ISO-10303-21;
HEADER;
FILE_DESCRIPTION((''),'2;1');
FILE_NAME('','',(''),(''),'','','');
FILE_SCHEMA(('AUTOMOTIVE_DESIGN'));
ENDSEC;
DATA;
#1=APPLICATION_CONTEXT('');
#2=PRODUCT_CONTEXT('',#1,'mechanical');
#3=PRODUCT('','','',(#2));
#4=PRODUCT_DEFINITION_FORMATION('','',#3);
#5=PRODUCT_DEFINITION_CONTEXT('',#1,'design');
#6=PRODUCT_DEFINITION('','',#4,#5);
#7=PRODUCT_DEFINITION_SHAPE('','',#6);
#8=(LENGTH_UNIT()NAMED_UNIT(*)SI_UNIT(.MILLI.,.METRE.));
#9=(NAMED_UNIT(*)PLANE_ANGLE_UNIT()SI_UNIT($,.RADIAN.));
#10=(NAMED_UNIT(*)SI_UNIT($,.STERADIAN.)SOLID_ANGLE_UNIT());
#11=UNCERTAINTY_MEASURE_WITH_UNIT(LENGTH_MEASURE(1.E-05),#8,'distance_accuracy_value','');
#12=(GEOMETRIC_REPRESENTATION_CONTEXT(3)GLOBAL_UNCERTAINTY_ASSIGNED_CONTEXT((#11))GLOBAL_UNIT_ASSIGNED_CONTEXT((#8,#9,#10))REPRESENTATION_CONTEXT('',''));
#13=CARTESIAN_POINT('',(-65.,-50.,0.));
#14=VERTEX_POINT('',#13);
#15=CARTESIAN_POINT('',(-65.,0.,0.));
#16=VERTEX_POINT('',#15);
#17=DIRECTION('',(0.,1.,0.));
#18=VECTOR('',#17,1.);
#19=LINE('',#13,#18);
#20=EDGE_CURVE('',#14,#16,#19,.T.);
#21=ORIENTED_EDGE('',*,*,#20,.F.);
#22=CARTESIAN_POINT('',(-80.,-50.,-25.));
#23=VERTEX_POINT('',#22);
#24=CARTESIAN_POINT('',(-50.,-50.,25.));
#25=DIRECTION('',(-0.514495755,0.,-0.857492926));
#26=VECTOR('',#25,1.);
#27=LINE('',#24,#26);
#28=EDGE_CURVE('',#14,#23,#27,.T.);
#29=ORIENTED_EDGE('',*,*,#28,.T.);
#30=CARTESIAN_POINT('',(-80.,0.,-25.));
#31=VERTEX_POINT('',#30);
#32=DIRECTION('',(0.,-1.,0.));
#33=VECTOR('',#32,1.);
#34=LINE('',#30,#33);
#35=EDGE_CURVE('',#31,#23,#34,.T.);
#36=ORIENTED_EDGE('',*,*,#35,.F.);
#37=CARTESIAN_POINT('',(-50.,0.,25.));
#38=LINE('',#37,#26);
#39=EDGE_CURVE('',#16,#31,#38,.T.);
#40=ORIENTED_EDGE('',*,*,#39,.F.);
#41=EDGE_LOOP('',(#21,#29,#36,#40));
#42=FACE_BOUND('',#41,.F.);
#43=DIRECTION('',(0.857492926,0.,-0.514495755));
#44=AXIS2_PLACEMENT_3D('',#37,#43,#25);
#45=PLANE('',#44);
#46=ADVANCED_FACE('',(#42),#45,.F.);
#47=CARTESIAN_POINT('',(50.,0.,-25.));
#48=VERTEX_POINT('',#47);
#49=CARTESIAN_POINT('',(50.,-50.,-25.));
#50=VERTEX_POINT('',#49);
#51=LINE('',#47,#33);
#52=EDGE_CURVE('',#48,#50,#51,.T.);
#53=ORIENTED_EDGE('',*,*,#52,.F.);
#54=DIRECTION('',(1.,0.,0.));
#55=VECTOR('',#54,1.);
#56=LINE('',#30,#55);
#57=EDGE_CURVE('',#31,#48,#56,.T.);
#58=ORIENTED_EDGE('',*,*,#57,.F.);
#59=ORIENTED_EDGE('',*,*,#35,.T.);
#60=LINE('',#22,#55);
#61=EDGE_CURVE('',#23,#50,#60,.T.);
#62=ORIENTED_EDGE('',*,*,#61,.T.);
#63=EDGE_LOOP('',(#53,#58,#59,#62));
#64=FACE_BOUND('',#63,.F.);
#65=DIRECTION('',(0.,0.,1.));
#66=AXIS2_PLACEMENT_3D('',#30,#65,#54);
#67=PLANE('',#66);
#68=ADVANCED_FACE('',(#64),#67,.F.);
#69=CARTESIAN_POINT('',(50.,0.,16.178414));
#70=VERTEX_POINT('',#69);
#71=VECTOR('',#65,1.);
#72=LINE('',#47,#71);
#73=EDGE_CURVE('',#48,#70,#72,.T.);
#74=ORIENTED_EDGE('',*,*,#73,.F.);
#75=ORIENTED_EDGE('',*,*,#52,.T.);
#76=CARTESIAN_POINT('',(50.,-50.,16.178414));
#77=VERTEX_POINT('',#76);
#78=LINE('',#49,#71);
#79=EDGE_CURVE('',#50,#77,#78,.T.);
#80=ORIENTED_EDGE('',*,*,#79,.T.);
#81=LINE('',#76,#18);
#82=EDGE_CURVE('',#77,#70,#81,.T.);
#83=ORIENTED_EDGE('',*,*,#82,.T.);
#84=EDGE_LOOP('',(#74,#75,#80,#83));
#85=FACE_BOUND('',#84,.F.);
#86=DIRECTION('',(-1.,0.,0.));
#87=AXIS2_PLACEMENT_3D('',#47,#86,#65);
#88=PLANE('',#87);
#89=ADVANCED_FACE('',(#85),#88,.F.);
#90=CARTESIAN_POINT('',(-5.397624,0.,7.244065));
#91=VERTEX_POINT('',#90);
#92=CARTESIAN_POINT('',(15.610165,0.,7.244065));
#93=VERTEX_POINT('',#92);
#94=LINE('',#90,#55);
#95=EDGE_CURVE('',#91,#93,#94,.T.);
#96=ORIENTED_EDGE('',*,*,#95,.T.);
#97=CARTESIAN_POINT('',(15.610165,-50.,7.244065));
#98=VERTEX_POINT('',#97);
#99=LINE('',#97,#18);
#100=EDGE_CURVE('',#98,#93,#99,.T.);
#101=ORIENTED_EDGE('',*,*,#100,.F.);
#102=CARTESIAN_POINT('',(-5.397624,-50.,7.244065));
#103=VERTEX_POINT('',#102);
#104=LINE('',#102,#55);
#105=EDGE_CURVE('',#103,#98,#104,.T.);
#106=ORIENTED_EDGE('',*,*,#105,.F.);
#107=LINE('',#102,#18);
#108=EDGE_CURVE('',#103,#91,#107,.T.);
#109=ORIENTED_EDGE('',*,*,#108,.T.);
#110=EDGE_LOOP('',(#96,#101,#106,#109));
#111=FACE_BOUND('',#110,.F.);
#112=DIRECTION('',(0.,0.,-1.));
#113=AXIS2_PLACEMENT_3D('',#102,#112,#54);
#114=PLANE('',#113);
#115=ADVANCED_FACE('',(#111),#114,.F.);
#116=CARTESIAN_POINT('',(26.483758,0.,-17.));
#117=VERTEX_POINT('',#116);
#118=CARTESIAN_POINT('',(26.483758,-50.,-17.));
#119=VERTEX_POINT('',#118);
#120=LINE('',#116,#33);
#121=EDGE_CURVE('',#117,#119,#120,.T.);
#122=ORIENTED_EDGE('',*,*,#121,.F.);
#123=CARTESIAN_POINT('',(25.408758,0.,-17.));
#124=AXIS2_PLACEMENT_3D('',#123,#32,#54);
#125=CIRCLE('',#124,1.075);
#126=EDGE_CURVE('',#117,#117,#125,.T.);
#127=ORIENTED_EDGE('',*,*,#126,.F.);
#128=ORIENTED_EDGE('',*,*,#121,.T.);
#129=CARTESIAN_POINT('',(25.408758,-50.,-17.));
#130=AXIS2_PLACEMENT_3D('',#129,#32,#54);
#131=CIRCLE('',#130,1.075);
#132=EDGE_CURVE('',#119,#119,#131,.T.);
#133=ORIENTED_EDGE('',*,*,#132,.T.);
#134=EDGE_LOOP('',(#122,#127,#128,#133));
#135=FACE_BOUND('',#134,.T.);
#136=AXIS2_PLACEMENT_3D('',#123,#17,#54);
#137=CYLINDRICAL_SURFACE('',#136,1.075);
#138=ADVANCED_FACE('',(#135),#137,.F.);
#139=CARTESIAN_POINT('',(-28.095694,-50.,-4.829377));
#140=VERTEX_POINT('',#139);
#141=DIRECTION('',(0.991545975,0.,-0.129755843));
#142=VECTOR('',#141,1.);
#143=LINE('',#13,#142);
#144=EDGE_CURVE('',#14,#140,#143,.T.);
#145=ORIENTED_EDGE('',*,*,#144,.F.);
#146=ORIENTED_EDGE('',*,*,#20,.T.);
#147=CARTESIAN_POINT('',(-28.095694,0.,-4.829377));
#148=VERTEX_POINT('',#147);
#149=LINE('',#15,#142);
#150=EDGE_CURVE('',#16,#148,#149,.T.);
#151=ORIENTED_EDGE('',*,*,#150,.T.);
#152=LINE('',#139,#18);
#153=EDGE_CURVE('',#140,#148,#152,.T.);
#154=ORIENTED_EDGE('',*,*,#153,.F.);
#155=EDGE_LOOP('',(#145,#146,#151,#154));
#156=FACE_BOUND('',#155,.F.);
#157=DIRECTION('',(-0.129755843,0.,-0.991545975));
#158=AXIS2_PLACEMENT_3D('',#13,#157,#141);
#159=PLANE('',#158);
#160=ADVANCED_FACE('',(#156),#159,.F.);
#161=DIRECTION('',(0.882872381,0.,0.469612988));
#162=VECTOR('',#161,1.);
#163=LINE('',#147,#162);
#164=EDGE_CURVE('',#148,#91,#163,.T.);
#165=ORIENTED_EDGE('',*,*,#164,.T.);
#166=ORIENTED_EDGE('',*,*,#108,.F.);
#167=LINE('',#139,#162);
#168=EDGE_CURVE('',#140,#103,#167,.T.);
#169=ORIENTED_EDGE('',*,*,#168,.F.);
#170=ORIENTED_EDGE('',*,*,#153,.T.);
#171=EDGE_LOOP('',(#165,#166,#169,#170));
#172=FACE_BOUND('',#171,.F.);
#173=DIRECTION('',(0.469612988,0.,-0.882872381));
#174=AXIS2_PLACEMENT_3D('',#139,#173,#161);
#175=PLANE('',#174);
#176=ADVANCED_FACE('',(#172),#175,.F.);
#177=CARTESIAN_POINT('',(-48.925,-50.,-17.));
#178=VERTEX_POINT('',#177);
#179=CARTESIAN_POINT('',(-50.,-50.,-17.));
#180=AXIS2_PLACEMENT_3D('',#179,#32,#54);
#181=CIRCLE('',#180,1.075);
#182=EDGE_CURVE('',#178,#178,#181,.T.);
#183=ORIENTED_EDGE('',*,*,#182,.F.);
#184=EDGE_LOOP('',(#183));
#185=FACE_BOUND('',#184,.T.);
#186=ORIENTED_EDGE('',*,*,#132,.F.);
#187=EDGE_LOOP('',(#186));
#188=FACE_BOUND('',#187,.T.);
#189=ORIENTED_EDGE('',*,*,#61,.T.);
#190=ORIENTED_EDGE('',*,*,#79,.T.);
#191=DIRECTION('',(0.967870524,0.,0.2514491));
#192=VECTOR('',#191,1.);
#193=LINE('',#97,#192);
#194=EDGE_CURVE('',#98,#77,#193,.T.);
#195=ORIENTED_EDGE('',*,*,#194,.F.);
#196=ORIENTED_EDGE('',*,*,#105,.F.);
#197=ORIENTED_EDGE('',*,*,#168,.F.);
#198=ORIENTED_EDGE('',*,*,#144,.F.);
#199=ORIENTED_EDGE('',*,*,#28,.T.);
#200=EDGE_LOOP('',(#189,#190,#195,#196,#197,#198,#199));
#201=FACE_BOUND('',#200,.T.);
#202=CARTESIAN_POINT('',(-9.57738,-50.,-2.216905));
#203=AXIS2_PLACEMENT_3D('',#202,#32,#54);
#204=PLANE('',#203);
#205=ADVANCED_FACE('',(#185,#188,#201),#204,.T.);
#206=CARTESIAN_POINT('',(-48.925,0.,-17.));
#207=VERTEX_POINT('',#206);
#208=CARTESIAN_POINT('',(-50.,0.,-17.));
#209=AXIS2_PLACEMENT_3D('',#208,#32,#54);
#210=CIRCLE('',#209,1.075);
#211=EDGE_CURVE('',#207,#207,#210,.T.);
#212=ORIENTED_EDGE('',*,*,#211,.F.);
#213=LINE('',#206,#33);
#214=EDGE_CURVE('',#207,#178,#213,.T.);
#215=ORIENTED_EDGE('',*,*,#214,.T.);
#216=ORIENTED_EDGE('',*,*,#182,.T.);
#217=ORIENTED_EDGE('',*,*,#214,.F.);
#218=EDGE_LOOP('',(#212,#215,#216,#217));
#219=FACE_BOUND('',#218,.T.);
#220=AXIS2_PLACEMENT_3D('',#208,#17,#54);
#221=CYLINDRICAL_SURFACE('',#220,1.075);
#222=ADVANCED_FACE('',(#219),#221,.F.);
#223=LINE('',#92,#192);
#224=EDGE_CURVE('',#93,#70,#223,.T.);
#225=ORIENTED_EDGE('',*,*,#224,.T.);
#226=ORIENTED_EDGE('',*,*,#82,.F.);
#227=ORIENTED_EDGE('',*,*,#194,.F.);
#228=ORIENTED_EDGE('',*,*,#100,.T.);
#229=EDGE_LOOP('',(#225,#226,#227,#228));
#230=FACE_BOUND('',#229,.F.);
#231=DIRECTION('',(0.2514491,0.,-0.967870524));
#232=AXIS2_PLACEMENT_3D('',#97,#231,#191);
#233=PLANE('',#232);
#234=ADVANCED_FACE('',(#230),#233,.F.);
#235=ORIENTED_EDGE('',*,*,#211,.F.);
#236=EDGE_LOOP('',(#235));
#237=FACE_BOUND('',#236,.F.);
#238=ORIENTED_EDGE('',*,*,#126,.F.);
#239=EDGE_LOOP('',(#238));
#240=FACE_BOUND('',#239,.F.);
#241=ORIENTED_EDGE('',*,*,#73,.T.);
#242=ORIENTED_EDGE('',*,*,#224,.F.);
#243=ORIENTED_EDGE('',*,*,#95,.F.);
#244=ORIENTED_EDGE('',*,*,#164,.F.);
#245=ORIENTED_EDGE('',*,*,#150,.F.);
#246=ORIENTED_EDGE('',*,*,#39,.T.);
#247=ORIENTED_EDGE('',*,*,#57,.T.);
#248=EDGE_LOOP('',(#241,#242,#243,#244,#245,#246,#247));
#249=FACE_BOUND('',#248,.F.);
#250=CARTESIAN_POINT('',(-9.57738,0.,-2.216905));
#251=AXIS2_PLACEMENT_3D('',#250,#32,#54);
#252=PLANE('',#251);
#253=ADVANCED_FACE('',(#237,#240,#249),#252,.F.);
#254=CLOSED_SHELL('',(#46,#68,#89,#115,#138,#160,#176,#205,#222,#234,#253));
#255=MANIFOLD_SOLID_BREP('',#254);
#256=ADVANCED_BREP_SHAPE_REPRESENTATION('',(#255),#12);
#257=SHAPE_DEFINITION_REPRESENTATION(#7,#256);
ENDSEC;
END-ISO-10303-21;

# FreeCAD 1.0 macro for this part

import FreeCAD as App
import Part
import Sketcher

V = App.Vector

doc = App.newDocument("Part")
body = doc.addObject("PartDesign::Body", "Body")

sketch1 = body.newObject("Sketcher::SketchObject", "Sketch")
sketch1.AttachmentSupport = (doc.getObject("XZ_Plane"), [""])
sketch1.MapMode = "FlatFace"
sketch1.addGeometry([
    Part.LineSegment(V(50, -25, 0), V(50, 25, 0)),
    Part.LineSegment(V(50, 25, 0), V(-50, 25, 0)),
    Part.LineSegment(V(-50, 25, 0), V(-80, -25, 0)),
    Part.LineSegment(V(-80, -25, 0), V(50, -25, 0)),
    Part.Circle(V(-50, -17, 0), V(0, 0, 1), 1.1),
    Part.Circle(V(25.4, -17, 0), V(0, 0, 1), 1.1),
], False)
sketch1.addConstraint([
    Sketcher.Constraint("Coincident", 0, 2, 1, 1),
    Sketcher.Constraint("Coincident", 1, 2, 2, 1),
    Sketcher.Constraint("Coincident", 2, 2, 3, 1),
    Sketcher.Constraint("Coincident", 3, 2, 0, 1),
    Sketcher.Constraint("Vertical", 0),
    Sketcher.Constraint("Horizontal", 1),
    Sketcher.Constraint("Horizontal", 3),
    Sketcher.Constraint("Equal", 4, 5),
    Sketcher.Constraint("Symmetric", 1, 2, 3, 2, -1, 1),
    Sketcher.Constraint("Horizontal", 4, 3, 5, 3),
    Sketcher.Constraint("Vertical", 4, 3, 1, 2),
    Sketcher.Constraint("Diameter", 4, 2.15),
    Sketcher.Constraint("DistanceX", 1, 2, 1, 1, 100.0),
    Sketcher.Constraint("DistanceX", 3, 1, 3, 2, 130.0),
    Sketcher.Constraint("DistanceY", 0, 1, 0, 2, 50.0),
    Sketcher.Constraint("DistanceY", 4, 3, -1, 1, 17.0),
    Sketcher.Constraint("DistanceX", 4, 3, 5, 3, 75.408758),
])
pad1 = body.newObject("PartDesign::Pad", "Pad")
pad1.Profile = sketch1
pad1.Length = 50

sketch2 = body.newObject("Sketcher::SketchObject", "Sketch001")
sketch2.AttachmentSupport = (doc.getObject("XZ_Plane"), [""])
sketch2.MapMode = "FlatFace"
sketch2.AttachmentOffset = App.Placement(V(0, 0, 50), App.Rotation())
sketch2.addGeometry([
    Part.LineSegment(V(-50, 25, 0), V(-65, 0, 0)),
    Part.LineSegment(V(-65, 0, 0), V(-28, -5, 0)),
    Part.LineSegment(V(-28, -5, 0), V(-5, 7, 0)),
    Part.LineSegment(V(-5, 7, 0), V(16, 7, 0)),
    Part.LineSegment(V(16, 7, 0), V(50, 16, 0)),
    Part.LineSegment(V(50, 16, 0), V(50, 25, 0)),
    Part.LineSegment(V(50, 25, 0), V(-50, 25, 0)),
], False)
sketch2.addConstraint([
    Sketcher.Constraint("Coincident", 0, 2, 1, 1),
    Sketcher.Constraint("Coincident", 1, 2, 2, 1),
    Sketcher.Constraint("Coincident", 2, 2, 3, 1),
    Sketcher.Constraint("Coincident", 3, 2, 4, 1),
    Sketcher.Constraint("Coincident", 4, 2, 5, 1),
    Sketcher.Constraint("Coincident", 5, 2, 6, 1),
    Sketcher.Constraint("Coincident", 6, 2, 0, 1),
    Sketcher.Constraint("Horizontal", 3),
    Sketcher.Constraint("Vertical", 5),
    Sketcher.Constraint("Horizontal", 6),
    Sketcher.Constraint("PointOnObject", 0, 2, -1),
    Sketcher.Constraint("DistanceX", 6, 2, 6, 1, 100.0),
    Sketcher.Constraint("DistanceX", 0, 2, -1, 1, 65.0),
    Sketcher.Constraint("DistanceX", -1, 1, 4, 2, 50.0),
    Sketcher.Constraint("DistanceY", -1, 1, 5, 2, 25.0),
    Sketcher.Constraint("DistanceX", 3, 1, 3, 2, 21.007789),
    Sketcher.Constraint("Distance", 4, 35.531442),
    Sketcher.Constraint("DistanceY", 5, 1, 5, 2, 8.821586),
    Sketcher.Constraint("DistanceX", 1, 2, 2, 2, 22.69807),
    Sketcher.Constraint("DistanceY", 3, 2, 4, 2, 8.934349),
    Sketcher.Constraint("DistanceY", 1, 2, 4, 2, 21.007791),
])
pocket1 = body.newObject("PartDesign::Pocket", "Pocket")
pocket1.Profile = sketch2
pocket1.Length = 50

doc.recompute()
